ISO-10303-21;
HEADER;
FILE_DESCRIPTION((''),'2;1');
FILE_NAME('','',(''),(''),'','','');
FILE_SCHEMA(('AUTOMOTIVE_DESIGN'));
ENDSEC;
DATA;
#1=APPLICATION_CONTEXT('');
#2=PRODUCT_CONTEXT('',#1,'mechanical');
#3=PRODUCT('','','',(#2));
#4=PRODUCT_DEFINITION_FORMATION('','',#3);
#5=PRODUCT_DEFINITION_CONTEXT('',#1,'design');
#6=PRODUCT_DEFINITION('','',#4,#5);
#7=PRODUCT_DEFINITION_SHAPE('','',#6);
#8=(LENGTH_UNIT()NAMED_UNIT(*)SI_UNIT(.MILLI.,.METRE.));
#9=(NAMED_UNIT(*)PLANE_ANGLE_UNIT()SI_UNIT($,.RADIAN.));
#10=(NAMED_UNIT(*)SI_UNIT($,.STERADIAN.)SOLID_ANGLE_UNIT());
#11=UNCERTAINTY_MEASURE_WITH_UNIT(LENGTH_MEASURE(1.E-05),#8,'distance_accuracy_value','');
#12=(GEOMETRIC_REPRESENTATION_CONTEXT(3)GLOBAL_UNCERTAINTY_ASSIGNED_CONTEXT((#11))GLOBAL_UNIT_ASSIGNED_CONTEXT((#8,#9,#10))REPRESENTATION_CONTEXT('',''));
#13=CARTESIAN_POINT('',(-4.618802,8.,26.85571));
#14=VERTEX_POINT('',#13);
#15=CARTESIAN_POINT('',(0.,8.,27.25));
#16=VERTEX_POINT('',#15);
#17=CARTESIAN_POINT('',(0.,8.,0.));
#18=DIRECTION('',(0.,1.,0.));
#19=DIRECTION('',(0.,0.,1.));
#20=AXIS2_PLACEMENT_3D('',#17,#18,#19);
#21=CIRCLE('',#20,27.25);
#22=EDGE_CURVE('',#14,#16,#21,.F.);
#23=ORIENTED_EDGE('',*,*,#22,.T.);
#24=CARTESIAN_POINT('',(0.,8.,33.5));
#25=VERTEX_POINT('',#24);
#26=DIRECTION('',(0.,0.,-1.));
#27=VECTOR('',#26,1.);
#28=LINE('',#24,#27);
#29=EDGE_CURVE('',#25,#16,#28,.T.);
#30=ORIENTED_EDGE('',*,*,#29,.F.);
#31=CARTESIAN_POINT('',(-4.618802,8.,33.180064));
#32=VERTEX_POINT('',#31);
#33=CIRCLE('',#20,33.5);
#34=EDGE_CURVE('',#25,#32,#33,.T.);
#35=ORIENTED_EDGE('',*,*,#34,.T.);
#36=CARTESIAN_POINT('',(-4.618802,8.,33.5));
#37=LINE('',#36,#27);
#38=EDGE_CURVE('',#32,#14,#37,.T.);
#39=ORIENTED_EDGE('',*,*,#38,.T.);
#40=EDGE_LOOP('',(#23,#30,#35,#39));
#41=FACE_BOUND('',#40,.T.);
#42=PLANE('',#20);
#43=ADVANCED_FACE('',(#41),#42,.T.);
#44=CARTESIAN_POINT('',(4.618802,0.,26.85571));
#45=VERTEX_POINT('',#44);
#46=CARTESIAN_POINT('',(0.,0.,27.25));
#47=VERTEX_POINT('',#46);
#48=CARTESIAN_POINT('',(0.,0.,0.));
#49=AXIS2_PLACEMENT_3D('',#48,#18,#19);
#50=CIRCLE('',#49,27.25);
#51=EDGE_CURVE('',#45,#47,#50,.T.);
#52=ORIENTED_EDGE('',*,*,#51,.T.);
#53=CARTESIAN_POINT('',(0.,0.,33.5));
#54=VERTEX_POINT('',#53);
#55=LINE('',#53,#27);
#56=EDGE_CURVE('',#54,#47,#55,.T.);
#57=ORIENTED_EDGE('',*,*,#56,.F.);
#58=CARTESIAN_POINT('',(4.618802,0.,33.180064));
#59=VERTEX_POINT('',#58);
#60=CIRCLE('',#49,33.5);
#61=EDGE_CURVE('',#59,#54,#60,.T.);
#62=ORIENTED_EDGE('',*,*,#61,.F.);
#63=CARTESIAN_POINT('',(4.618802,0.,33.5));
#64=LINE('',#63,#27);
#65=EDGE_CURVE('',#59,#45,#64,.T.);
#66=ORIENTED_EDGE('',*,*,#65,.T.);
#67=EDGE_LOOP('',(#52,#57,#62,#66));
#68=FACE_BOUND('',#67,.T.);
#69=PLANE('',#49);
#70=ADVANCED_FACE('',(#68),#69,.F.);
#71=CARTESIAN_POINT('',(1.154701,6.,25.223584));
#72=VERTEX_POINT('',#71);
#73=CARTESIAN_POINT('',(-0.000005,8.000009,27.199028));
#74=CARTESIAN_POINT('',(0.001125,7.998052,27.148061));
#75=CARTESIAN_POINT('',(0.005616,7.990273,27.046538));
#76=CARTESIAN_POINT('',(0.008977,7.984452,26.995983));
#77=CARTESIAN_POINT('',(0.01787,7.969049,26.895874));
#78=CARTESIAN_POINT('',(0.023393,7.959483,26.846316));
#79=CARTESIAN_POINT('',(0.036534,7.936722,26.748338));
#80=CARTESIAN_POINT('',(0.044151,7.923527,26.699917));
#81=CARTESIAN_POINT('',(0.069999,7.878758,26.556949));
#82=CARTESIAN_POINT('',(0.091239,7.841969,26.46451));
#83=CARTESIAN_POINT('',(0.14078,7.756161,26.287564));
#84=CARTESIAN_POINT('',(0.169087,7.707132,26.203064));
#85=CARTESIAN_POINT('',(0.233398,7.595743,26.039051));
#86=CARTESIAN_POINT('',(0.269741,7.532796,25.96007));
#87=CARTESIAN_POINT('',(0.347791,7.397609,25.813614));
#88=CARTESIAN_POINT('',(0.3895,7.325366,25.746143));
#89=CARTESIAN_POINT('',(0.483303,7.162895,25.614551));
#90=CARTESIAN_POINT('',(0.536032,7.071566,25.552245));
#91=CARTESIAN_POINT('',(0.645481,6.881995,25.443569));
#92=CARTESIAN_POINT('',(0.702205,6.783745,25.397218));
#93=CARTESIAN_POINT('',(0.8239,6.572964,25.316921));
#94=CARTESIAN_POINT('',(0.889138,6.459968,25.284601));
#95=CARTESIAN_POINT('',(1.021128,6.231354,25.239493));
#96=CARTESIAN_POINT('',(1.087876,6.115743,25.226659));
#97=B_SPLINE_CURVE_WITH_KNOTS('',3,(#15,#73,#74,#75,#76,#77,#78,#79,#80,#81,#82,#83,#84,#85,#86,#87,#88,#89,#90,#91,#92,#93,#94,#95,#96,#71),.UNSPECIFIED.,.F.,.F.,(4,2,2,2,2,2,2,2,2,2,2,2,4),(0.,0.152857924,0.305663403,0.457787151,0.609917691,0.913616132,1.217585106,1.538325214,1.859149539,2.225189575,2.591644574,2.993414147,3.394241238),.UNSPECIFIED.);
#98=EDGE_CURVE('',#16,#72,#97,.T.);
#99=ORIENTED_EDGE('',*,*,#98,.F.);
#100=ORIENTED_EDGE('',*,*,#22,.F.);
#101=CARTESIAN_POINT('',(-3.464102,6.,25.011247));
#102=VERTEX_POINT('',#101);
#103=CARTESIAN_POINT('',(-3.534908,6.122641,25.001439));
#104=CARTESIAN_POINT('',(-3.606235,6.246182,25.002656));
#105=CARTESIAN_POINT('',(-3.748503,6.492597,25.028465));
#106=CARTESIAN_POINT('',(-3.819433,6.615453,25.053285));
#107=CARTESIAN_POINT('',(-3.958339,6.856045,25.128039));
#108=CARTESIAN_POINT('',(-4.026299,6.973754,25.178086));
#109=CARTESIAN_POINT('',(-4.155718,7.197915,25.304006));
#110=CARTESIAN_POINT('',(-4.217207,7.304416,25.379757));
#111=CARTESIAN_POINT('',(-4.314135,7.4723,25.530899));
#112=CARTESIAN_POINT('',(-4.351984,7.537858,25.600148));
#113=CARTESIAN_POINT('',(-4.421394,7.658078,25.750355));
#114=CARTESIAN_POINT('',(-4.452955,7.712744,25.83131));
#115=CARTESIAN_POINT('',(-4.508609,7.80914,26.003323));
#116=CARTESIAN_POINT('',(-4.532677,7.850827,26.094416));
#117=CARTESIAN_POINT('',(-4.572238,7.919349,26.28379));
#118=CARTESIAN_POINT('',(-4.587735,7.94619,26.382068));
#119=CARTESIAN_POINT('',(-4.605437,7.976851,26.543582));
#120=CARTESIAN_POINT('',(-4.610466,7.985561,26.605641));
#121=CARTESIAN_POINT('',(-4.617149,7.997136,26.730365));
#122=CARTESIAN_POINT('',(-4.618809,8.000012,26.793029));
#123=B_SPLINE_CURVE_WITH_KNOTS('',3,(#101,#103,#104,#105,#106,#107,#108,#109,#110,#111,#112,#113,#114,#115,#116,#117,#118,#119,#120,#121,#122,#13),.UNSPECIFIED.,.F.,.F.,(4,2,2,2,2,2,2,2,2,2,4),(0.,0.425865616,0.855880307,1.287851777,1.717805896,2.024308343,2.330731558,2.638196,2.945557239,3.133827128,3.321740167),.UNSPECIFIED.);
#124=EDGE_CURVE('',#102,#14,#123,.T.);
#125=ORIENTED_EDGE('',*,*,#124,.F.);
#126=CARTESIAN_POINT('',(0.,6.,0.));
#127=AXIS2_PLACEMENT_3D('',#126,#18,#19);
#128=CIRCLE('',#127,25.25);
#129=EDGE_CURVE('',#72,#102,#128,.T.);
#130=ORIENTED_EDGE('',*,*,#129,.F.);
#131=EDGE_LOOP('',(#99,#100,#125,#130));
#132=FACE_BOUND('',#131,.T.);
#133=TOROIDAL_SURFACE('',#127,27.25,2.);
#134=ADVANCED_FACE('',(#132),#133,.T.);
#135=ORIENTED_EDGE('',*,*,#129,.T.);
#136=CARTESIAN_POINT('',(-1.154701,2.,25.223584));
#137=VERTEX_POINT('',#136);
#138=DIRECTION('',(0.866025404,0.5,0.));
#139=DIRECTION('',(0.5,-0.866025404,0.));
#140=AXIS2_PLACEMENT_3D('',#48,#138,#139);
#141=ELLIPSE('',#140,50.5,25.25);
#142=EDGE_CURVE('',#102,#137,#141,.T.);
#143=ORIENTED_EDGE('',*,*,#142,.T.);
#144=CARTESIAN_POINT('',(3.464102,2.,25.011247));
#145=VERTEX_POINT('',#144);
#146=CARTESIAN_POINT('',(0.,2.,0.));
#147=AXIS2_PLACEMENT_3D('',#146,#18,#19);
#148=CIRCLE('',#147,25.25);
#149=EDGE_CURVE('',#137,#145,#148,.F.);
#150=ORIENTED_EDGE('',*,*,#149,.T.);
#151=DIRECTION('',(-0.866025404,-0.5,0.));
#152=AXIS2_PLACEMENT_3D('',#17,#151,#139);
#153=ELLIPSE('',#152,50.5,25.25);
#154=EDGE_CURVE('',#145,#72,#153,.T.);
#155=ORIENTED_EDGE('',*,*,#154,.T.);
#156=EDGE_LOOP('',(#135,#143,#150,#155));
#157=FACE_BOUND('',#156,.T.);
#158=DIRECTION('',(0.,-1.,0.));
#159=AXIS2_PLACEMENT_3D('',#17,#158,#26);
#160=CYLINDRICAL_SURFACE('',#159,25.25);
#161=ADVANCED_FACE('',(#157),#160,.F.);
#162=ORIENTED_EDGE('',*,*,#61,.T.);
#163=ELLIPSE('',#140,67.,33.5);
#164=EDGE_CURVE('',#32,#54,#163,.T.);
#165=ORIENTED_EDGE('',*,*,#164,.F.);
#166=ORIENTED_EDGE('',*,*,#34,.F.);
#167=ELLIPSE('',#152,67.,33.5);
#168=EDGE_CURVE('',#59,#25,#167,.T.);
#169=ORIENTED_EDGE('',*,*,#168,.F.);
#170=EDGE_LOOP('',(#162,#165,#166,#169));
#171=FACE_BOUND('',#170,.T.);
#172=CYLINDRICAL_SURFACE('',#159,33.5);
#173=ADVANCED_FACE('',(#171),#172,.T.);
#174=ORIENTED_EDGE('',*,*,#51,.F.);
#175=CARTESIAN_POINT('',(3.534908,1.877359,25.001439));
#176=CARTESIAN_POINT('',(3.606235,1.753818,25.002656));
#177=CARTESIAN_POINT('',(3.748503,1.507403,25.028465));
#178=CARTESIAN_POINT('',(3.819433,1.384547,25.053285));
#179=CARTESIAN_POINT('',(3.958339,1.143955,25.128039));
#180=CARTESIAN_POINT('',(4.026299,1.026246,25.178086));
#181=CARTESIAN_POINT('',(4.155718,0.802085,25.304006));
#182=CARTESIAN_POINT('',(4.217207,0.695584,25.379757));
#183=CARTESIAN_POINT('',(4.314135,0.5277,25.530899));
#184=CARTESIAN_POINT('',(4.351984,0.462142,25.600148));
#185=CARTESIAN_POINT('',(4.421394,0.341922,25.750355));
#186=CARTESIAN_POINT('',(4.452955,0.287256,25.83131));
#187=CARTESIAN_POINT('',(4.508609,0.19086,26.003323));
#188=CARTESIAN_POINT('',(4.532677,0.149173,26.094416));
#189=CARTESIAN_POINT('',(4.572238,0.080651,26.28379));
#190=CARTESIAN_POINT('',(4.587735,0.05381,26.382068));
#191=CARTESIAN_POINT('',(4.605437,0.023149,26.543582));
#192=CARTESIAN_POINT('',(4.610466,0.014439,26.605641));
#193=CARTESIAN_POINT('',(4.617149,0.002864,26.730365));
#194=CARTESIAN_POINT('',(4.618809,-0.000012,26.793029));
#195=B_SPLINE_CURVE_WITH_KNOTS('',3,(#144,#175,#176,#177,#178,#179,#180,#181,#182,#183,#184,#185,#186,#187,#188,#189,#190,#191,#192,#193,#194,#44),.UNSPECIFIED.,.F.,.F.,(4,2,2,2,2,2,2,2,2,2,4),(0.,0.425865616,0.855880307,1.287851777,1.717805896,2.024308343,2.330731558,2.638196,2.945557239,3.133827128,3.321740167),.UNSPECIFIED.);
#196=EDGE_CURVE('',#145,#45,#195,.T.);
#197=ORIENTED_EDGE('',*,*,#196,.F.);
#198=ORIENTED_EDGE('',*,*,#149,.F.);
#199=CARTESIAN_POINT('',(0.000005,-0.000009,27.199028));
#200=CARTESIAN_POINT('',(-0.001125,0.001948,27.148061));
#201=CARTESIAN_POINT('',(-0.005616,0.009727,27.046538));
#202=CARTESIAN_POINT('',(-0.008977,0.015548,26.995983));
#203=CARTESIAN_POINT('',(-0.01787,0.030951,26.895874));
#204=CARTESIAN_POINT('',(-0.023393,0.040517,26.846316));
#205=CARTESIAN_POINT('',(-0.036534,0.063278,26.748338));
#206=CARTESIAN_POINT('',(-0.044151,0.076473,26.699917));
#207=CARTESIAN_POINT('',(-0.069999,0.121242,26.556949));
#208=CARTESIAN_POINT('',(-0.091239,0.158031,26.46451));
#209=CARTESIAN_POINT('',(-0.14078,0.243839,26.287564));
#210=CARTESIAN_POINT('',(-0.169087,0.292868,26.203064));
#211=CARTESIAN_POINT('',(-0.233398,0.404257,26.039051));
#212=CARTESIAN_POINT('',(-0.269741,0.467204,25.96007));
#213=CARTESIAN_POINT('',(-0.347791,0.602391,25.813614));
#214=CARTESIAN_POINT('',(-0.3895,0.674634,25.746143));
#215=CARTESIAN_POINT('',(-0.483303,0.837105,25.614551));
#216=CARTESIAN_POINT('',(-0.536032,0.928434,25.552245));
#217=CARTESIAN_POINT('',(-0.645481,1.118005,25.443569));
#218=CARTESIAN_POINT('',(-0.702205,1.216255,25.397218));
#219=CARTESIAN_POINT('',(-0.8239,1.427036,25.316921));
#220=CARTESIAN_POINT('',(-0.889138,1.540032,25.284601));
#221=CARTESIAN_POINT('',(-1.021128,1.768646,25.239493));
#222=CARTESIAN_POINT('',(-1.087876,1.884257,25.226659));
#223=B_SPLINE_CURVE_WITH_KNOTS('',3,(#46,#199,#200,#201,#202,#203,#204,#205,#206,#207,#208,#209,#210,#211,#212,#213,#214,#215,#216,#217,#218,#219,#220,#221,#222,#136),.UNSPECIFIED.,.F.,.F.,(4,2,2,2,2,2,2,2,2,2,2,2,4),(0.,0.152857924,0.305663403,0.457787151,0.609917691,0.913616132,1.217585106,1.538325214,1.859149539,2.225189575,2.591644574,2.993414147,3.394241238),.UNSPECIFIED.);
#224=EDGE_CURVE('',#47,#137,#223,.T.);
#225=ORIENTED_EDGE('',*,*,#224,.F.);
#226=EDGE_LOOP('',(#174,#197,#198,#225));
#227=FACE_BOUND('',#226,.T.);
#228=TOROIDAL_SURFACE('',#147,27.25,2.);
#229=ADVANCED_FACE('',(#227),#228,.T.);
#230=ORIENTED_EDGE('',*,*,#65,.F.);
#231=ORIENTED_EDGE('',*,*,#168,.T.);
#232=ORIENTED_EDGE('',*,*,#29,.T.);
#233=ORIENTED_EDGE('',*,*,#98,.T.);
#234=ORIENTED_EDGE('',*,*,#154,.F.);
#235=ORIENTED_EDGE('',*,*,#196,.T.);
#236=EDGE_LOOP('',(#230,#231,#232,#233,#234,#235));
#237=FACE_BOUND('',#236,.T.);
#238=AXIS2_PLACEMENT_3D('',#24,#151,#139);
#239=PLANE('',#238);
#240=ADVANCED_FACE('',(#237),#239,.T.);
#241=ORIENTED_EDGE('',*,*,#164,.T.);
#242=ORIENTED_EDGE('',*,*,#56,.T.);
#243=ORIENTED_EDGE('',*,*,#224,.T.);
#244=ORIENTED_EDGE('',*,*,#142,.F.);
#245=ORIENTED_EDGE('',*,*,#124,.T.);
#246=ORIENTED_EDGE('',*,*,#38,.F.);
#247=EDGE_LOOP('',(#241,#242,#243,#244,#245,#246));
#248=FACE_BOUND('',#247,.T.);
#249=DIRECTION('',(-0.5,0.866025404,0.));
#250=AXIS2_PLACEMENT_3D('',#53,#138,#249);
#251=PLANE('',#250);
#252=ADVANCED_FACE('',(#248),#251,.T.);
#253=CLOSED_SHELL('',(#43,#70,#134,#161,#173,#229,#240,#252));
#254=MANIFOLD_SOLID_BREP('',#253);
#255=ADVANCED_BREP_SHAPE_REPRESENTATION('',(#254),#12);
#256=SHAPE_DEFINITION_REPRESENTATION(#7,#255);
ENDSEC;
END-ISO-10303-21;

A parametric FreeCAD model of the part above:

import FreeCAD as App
import Part
import Sketcher
Q = App.Units.Quantity


def edges_at(feature, points):
    """Names of the edges that pass closest to the given points."""
    edges = feature.Shape.Edges
    near = lambda p: min(range(len(edges)), key=lambda i: edges[i].distToShape(Part.Vertex(*p))[0])
    return sorted({f"Edge{near(p) + 1}" for p in points})

doc = App.newDocument("Part")
params = doc.addObject("Spreadsheet::Sheet", "Params")
for row, (alias, value) in enumerate([
    ("sketch1_diameter", "67 mm"),
    ("sketch1_diameter2", "50.5 mm"),
    ("pad1_length", "8 mm"),
    ("fillet_radius", "2 mm"),
], start=1):
    params.set(f"A{row}", alias)
    params.set(f"B{row}", "=" + value)
    params.setAlias(f"B{row}", alias)

body = doc.addObject("PartDesign::Body", "Body")

# Sketch on XZ plane
sketch1 = body.newObject("Sketcher::SketchObject", "Sketch")
sketch1.AttachmentSupport = (doc.getObject("XZ_Plane"), [""])
sketch1.MapMode = "FlatFace"
sketch1.addGeometry([
    Part.Circle(App.Vector(0, 0, 0), App.Vector(0, 0, 1), 33.5),
    Part.Circle(App.Vector(0, 0, 0), App.Vector(0, 0, 1), 25.25),
], False)
sketch1.addConstraint([
    Sketcher.Constraint("Coincident", 0, 3, -1, 1),
    Sketcher.Constraint("Coincident", 1, 3, -1, 1),
    Sketcher.Constraint("Diameter", 0, 67.0),
    Sketcher.Constraint("Diameter", 1, 50.5),
])
sketch1.setExpression("Constraints[2]", "Params.sketch1_diameter")
sketch1.setExpression("Constraints[3]", "Params.sketch1_diameter2")
pad1 = body.newObject("PartDesign::Pad", "Pad")
pad1.Profile = sketch1
pad1.setExpression("Length", "Params.pad1_length")
pad1.Reversed = True

# Sketch on XY plane
sketch2 = body.newObject("Sketcher::SketchObject", "Sketch001")
sketch2.AttachmentSupport = (doc.getObject("XY_Plane"), [""])
sketch2.MapMode = "FlatFace"
sketch2.addGeometry([
    Part.LineSegment(App.Vector(-4.618802, 8, 0), App.Vector(0, 0, 0)),
    Part.LineSegment(App.Vector(0, 0, 0), App.Vector(4.618802, 0, 0)),
    Part.LineSegment(App.Vector(4.618802, 0, 0), App.Vector(0, 8, 0)),
    Part.LineSegment(App.Vector(0, 8, 0), App.Vector(-4.618802, 8, 0)),
], False)
sketch2.addConstraint([
    Sketcher.Constraint("Coincident", 0, 2, 1, 1),
    Sketcher.Constraint("Coincident", 1, 2, 2, 1),
    Sketcher.Constraint("Coincident", 2, 2, 3, 1),
    Sketcher.Constraint("Coincident", 3, 2, 0, 1),
    Sketcher.Constraint("Horizontal", 1),
    Sketcher.Constraint("Horizontal", 3),
    Sketcher.Constraint("Coincident", 0, 2, -1, 1),
    Sketcher.Constraint("PointOnObject", 2, 2, -2),
    Sketcher.Constraint("Parallel", 0, 2),
    Sketcher.Constraint("Angle", 0, Q("-60 deg")),
    Sketcher.Constraint("DistanceY", -1, 1, 2, 2, 8.0),
])
pocket1 = body.newObject("PartDesign::Pocket", "Pocket")
pocket1.Profile = sketch2
pocket1.Type = "ThroughAll"
pocket1.Reversed = True
doc.recompute()

fillet = body.newObject("PartDesign::Fillet", "Fillet")
fillet.Base = (pocket1, edges_at(pocket1, [(-2.319, 0, -25.143), (2.319, 8, -25.143)]))
fillet.setExpression("Radius", "Params.fillet_radius")

doc.recompute()
